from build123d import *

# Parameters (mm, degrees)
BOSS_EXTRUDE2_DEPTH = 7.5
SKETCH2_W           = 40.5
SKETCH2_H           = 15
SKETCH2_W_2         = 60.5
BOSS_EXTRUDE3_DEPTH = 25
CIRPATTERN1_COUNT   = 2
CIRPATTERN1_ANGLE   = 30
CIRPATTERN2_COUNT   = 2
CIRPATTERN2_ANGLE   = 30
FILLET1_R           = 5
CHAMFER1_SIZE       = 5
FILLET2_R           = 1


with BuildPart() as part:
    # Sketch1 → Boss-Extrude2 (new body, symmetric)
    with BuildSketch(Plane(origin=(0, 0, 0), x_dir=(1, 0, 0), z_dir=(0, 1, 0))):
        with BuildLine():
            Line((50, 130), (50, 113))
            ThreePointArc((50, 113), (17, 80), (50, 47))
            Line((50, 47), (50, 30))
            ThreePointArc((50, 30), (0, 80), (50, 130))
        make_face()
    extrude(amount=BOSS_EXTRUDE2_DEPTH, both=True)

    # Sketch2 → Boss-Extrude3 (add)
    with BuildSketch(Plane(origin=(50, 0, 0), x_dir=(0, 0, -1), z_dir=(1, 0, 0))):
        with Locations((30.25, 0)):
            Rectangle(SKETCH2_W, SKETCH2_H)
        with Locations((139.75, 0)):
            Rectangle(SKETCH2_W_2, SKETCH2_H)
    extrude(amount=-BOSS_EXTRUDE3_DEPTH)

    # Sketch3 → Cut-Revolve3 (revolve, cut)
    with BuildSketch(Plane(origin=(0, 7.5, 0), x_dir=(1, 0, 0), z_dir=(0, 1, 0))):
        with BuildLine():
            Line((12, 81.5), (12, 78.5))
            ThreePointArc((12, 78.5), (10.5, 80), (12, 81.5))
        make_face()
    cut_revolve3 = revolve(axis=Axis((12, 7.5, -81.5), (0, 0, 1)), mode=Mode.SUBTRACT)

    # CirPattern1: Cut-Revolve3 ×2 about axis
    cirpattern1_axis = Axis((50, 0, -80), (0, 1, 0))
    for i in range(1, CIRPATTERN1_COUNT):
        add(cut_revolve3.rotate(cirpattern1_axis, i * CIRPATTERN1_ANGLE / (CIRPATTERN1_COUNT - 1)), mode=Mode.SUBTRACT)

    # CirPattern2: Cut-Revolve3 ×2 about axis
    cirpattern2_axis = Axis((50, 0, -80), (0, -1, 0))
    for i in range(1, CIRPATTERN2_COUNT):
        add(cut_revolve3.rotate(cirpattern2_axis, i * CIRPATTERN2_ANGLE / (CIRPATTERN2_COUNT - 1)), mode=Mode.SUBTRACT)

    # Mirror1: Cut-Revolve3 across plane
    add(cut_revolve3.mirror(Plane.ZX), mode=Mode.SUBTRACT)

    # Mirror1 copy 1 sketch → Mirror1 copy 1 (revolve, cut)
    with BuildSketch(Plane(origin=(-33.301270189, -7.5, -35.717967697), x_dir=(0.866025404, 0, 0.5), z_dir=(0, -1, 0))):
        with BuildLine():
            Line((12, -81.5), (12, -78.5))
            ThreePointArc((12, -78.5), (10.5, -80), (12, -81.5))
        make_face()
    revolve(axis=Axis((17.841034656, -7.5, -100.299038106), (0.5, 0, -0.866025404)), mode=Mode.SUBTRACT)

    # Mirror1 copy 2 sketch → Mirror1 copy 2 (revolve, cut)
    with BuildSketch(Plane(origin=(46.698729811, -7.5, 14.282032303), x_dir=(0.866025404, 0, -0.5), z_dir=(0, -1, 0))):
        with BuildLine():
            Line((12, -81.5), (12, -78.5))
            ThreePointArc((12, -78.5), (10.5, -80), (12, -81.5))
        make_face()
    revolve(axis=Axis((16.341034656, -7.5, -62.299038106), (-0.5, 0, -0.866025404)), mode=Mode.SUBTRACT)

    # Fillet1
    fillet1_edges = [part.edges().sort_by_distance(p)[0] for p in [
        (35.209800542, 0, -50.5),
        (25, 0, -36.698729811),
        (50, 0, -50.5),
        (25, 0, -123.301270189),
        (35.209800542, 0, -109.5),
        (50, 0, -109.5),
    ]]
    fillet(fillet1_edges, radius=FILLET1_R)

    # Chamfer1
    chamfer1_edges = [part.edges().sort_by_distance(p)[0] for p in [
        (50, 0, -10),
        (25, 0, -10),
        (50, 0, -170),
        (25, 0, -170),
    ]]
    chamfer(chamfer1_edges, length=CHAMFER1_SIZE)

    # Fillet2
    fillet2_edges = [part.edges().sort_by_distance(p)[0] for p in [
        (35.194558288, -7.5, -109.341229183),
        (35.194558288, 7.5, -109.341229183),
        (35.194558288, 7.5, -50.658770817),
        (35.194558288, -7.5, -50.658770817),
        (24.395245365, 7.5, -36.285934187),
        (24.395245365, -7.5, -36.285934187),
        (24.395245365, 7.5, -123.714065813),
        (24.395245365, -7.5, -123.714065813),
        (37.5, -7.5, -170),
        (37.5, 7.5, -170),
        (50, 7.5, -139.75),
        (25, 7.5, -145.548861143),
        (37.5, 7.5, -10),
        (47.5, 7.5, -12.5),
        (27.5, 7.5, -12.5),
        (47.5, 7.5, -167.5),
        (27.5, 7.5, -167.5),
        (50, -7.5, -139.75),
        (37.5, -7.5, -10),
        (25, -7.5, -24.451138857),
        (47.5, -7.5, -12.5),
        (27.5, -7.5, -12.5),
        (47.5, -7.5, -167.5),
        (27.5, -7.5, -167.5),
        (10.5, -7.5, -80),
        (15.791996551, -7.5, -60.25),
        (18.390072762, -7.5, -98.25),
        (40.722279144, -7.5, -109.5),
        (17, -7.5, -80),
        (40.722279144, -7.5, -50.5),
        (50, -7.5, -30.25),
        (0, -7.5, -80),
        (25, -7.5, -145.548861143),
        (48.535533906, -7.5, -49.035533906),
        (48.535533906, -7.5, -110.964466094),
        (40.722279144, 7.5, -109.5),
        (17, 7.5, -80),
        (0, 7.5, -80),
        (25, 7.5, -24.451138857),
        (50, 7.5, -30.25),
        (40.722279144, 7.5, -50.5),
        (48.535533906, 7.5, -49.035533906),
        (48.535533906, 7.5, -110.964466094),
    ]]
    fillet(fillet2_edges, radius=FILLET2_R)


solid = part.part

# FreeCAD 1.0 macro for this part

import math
import FreeCAD as App
import Part
import Sketcher

V = App.Vector
Q = App.Units.Quantity


def edges_at(feature, points):
    """Names of the edges that pass closest to the given points."""
    edges = feature.Shape.Edges
    near = lambda p: min(range(len(edges)), key=lambda i: edges[i].distToShape(Part.Vertex(*p))[0])
    return sorted({f"Edge{near(p) + 1}" for p in points})

doc = App.newDocument("Part")
body = doc.addObject("PartDesign::Body", "Body")

# Sketch on XZ plane
sketch1 = body.newObject("Sketcher::SketchObject", "Sketch")
sketch1.AttachmentSupport = (doc.getObject("XZ_Plane"), [""])
sketch1.MapMode = "FlatFace"
sketch1.addGeometry(Part.LineSegment(V(50, -113, 0), V(50, -130, 0)), False)
sketch1.addGeometry(Part.ArcOfCircle(Part.Circle(V(50, -80, 0), V(0, 0, 1), 50), math.radians(90), math.radians(270)), False)
sketch1.addGeometry(Part.LineSegment(V(50, -30, 0), V(50, -47, 0)), False)
sketch1.addGeometry(Part.ArcOfCircle(Part.Circle(V(50, -80, 0), V(0, 0, 1), 33), math.radians(90), math.radians(270)), False)
sketch1.addConstraint(Sketcher.Constraint("Coincident", 0, 2, 1, 2))
sketch1.addConstraint(Sketcher.Constraint("Coincident", 1, 1, 2, 1))
sketch1.addConstraint(Sketcher.Constraint("Coincident", 2, 2, 3, 1))
sketch1.addConstraint(Sketcher.Constraint("Coincident", 3, 2, 0, 1))
sketch1.addConstraint(Sketcher.Constraint("Vertical", 0))
sketch1.addConstraint(Sketcher.Constraint("Vertical", 2))
sketch1.addConstraint(Sketcher.Constraint("Coincident", 3, 3, 1, 3))
sketch1.addConstraint(Sketcher.Constraint("Vertical", 3, 3, 0, 2))
sketch1.addConstraint(Sketcher.Constraint("Vertical", 0, 2, 1, 1))
sketch1.addConstraint(Sketcher.Constraint("Radius", 1, Q("50 mm")))
sketch1.addConstraint(Sketcher.Constraint("Radius", 3, Q("33 mm")))
sketch1.addConstraint(Sketcher.Constraint("DistanceX", -1, 1, 1, 3, Q("50 mm")))
sketch1.addConstraint(Sketcher.Constraint("DistanceY", 1, 3, -1, 1, Q("80 mm")))
pad1 = body.newObject("PartDesign::Pad", "Pad")
pad1.Profile = sketch1
pad1.Length = 15
pad1.Midplane = True

# Sketch on YZ plane
sketch2 = body.newObject("Sketcher::SketchObject", "Sketch001")
sketch2.AttachmentSupport = (doc.getObject("YZ_Plane"), [""])
sketch2.MapMode = "FlatFace"
sketch2.AttachmentOffset = App.Placement(V(0, 0, 50), App.Rotation())
sketch2.addGeometry(Part.LineSegment(V(7.5, -10, 0), V(-7.5, -10, 0)), False)
sketch2.addGeometry(Part.LineSegment(V(-7.5, -10, 0), V(-7.5, -50.5, 0)), False)
sketch2.addGeometry(Part.LineSegment(V(-7.5, -50.5, 0), V(7.5, -50.5, 0)), False)
sketch2.addGeometry(Part.LineSegment(V(7.5, -50.5, 0), V(7.5, -10, 0)), False)
sketch2.addGeometry(Part.LineSegment(V(7.5, -109.5, 0), V(-7.5, -109.5, 0)), False)
sketch2.addGeometry(Part.LineSegment(V(-7.5, -109.5, 0), V(-7.5, -170, 0)), False)
sketch2.addGeometry(Part.LineSegment(V(-7.5, -170, 0), V(7.5, -170, 0)), False)
sketch2.addGeometry(Part.LineSegment(V(7.5, -170, 0), V(7.5, -109.5, 0)), False)
sketch2.addConstraint(Sketcher.Constraint("Coincident", 0, 2, 1, 1))
sketch2.addConstraint(Sketcher.Constraint("Coincident", 1, 2, 2, 1))
sketch2.addConstraint(Sketcher.Constraint("Coincident", 2, 2, 3, 1))
sketch2.addConstraint(Sketcher.Constraint("Coincident", 3, 2, 0, 1))
sketch2.addConstraint(Sketcher.Constraint("Coincident", 4, 2, 5, 1))
sketch2.addConstraint(Sketcher.Constraint("Coincident", 5, 2, 6, 1))
sketch2.addConstraint(Sketcher.Constraint("Coincident", 6, 2, 7, 1))
sketch2.addConstraint(Sketcher.Constraint("Coincident", 7, 2, 4, 1))
sketch2.addConstraint(Sketcher.Constraint("Horizontal", 0))
sketch2.addConstraint(Sketcher.Constraint("Vertical", 1))
sketch2.addConstraint(Sketcher.Constraint("Horizontal", 2))
sketch2.addConstraint(Sketcher.Constraint("Vertical", 3))
sketch2.addConstraint(Sketcher.Constraint("Horizontal", 4))
sketch2.addConstraint(Sketcher.Constraint("Vertical", 5))
sketch2.addConstraint(Sketcher.Constraint("Horizontal", 6))
sketch2.addConstraint(Sketcher.Constraint("Vertical", 7))
sketch2.addConstraint(Sketcher.Constraint("Vertical", 1, 2, 4, 2))
sketch2.addConstraint(Sketcher.Constraint("Vertical", 3, 2, 6, 2))
sketch2.addConstraint(Sketcher.Constraint("DistanceX", 0, 2, 0, 1, Q("15 mm")))
sketch2.addConstraint(Sketcher.Constraint("DistanceY", 1, 2, 1, 1, Q("40.5 mm")))
sketch2.addConstraint(Sketcher.Constraint("DistanceY", 5, 2, 5, 1, Q("60.5 mm")))
sketch2.addConstraint(Sketcher.Constraint("DistanceY", 0, 2, -1, 1, Q("10 mm")))
sketch2.addConstraint(Sketcher.Constraint("DistanceY", 5, 2, -1, 1, Q("170 mm")))
sketch2.addConstraint(Sketcher.Constraint("DistanceX", 0, 2, -1, 1, Q("7.5 mm")))
pad2 = body.newObject("PartDesign::Pad", "Pad001")
pad2.Profile = sketch2
pad2.Length = 25
pad2.Reversed = True

# Sketch on XZ plane
sketch3 = body.newObject("Sketcher::SketchObject", "Sketch002")
sketch3.AttachmentSupport = (doc.getObject("XZ_Plane"), [""])
sketch3.MapMode = "FlatFace"
sketch3.AttachmentOffset = App.Placement(V(0, 0, -7.5), App.Rotation())
sketch3.addGeometry(Part.LineSegment(V(12, -78.5, 0), V(12, -81.5, 0)), False)
sketch3.addGeometry(Part.ArcOfCircle(Part.Circle(V(12, -80, 0), V(0, 0, 1), 1.5), math.radians(90), math.radians(270)), False)
sketch3.addGeometry(Part.LineSegment(V(12, -81.5, 0), V(12, -78.5, 0)), True)  # axis
sketch3.addConstraint(Sketcher.Constraint("Coincident", 0, 1, 1, 1))
sketch3.addConstraint(Sketcher.Constraint("Coincident", 1, 2, 0, 2))
sketch3.addConstraint(Sketcher.Constraint("Vertical", 0))
sketch3.addConstraint(Sketcher.Constraint("Vertical", 2))
sketch3.addConstraint(Sketcher.Constraint("Coincident", 2, 1, 1, 2))
sketch3.addConstraint(Sketcher.Constraint("Vertical", 1, 3, 0, 1))
sketch3.addConstraint(Sketcher.Constraint("Equal", 0, 2))
sketch3.addConstraint(Sketcher.Constraint("Radius", 1, Q("1.5 mm")))
sketch3.addConstraint(Sketcher.Constraint("DistanceX", -1, 1, 1, 3, Q("12 mm")))
sketch3.addConstraint(Sketcher.Constraint("DistanceY", 1, 3, -1, 1, Q("80 mm")))
groove = body.newObject("PartDesign::Groove", "Groove")
groove.Profile = sketch3
groove.ReferenceAxis = (sketch3, ["Axis0"])
groove.Angle = 360
doc.recompute()

datumline = body.newObject("PartDesign::Line", "DatumLine")
datumline.Placement = App.Placement(V(50, 0, -80), App.Rotation(V(0, 0, 1), V(0, 1, 0)))
polarpattern = body.newObject("PartDesign::PolarPattern", "PolarPattern")
polarpattern.Originals = [groove]
polarpattern.Axis = (datumline, [""])
polarpattern.Angle = 30
polarpattern.Occurrences = 2
body.Tip = polarpattern
doc.recompute()

datumline2 = body.newObject("PartDesign::Line", "DatumLine001")
datumline2.Placement = App.Placement(V(50, 0, -80), App.Rotation(V(0, 0, 1), V(0, -1, 0)))
polarpattern2 = body.newObject("PartDesign::PolarPattern", "PolarPattern001")
polarpattern2.Originals = [groove]
polarpattern2.Axis = (datumline2, [""])
polarpattern2.Angle = 30
polarpattern2.Occurrences = 2
body.Tip = polarpattern2
doc.recompute()

mirrored = body.newObject("PartDesign::Mirrored", "Mirrored")
mirrored.Originals = [groove]
mirrored.MirrorPlane = (doc.getObject("XZ_Plane"), [""])
body.Tip = mirrored

# Sketch on XZ plane
sketch4 = body.newObject("Sketcher::SketchObject", "Sketch003")
sketch4.AttachmentSupport = (doc.getObject("XZ_Plane"), [""])
sketch4.MapMode = "FlatFace"
sketch4.AttachmentOffset = App.Placement(V(0, 0, 7.5), App.Rotation())
sketch4.addGeometry(Part.LineSegment(V(17.841035, -100.299038, 0), V(16.341035, -97.700962, 0)), False)
sketch4.addGeometry(Part.ArcOfCircle(Part.Circle(V(17.091035, -99, 0), V(0, 0, 1), 1.5), math.radians(120), math.radians(300)), False)
sketch4.addGeometry(Part.LineSegment(V(16.341035, -97.700962, 0), V(17.841035, -100.299038, 0)), True)  # axis
sketch4.addConstraint(Sketcher.Constraint("Coincident", 0, 1, 1, 2))
sketch4.addConstraint(Sketcher.Constraint("Coincident", 1, 1, 0, 2))
sketch4.addConstraint(Sketcher.Constraint("Coincident", 2, 1, 1, 1))
sketch4.addConstraint(Sketcher.Constraint("Coincident", 2, 2, 0, 1))
sketch4.addConstraint(Sketcher.Constraint("Radius", 1, Q("1.5 mm")))
sketch4.addConstraint(Sketcher.Constraint("Angle", 0, Q("120 deg")))
sketch4.addConstraint(Sketcher.Constraint("DistanceY", 1, 3, -1, 1, Q("99 mm")))
sketch4.addConstraint(Sketcher.Constraint("DistanceX", 1, 3, 0, 1, Q("0.75 mm")))
sketch4.addConstraint(Sketcher.Constraint("DistanceX", -1, 1, 1, 3, Q("17.091035 mm")))
groove2 = body.newObject("PartDesign::Groove", "Groove001")
groove2.Profile = sketch4
groove2.ReferenceAxis = (sketch4, ["Axis0"])
groove2.Angle = 360

# Sketch on XZ plane
sketch5 = body.newObject("Sketcher::SketchObject", "Sketch004")
sketch5.AttachmentSupport = (doc.getObject("XZ_Plane"), [""])
sketch5.MapMode = "FlatFace"
sketch5.AttachmentOffset = App.Placement(V(0, 0, 7.5), App.Rotation())
sketch5.addGeometry(Part.LineSegment(V(16.341035, -62.299038, 0), V(17.841035, -59.700962, 0)), False)
sketch5.addGeometry(Part.ArcOfCircle(Part.Circle(V(17.091035, -61, 0), V(0, 0, 1), 1.5), math.radians(60), math.radians(240)), False)
sketch5.addGeometry(Part.LineSegment(V(17.841035, -59.700962, 0), V(16.341035, -62.299038, 0)), True)  # axis
sketch5.addConstraint(Sketcher.Constraint("Coincident", 0, 1, 1, 2))
sketch5.addConstraint(Sketcher.Constraint("Coincident", 1, 1, 0, 2))
sketch5.addConstraint(Sketcher.Constraint("Coincident", 2, 1, 1, 1))
sketch5.addConstraint(Sketcher.Constraint("Coincident", 2, 2, 0, 1))
sketch5.addConstraint(Sketcher.Constraint("Radius", 1, Q("1.5 mm")))
sketch5.addConstraint(Sketcher.Constraint("Angle", 0, Q("60 deg")))
sketch5.addConstraint(Sketcher.Constraint("DistanceY", 1, 3, -1, 1, Q("61 mm")))
sketch5.addConstraint(Sketcher.Constraint("DistanceX", 0, 1, 1, 3, Q("0.75 mm")))
sketch5.addConstraint(Sketcher.Constraint("DistanceX", -1, 1, 1, 3, Q("17.091035 mm")))
groove3 = body.newObject("PartDesign::Groove", "Groove002")
groove3.Profile = sketch5
groove3.ReferenceAxis = (sketch5, ["Axis0"])
groove3.Angle = 360
doc.recompute()

fillet = body.newObject("PartDesign::Fillet", "Fillet")
fillet.Base = (groove3, edges_at(groove3, [
    (35.21, 0, -50.5),
    (25, 0, -36.699),
    (50, 0, -50.5),
    (25, 0, -123.301),
    (35.21, 0, -109.5),
    (50, 0, -109.5),
]))
fillet.Radius = 5
doc.recompute()

chamfer = body.newObject("PartDesign::Chamfer", "Chamfer")
chamfer.Base = (fillet, edges_at(fillet, [
    (50, 0, -10),
    (25, 0, -10),
    (50, 0, -170),
    (25, 0, -170),
]))
chamfer.Size = 5
doc.recompute()

fillet2 = body.newObject("PartDesign::Fillet", "Fillet001")
fillet2.Base = (chamfer, edges_at(chamfer, [
    (35.195, -7.5, -109.341),
    (35.195, 7.5, -109.341),
    (35.195, 7.5, -50.659),
    (35.195, -7.5, -50.659),
    (24.395, 7.5, -36.286),
    (24.395, -7.5, -36.286),
    (24.395, 7.5, -123.714),
    (24.395, -7.5, -123.714),
    (37.5, -7.5, -170),
    (37.5, 7.5, -170),
    (50, 7.5, -139.75),
    (25, 7.5, -145.549),
    (37.5, 7.5, -10),
    (47.5, 7.5, -12.5),
    (27.5, 7.5, -12.5),
    (47.5, 7.5, -167.5),
    (27.5, 7.5, -167.5),
    (50, -7.5, -139.75),
    (37.5, -7.5, -10),
    (25, -7.5, -24.451),
    (47.5, -7.5, -12.5),
    (27.5, -7.5, -12.5),
    (47.5, -7.5, -167.5),
    (27.5, -7.5, -167.5),
    (10.5, -7.5, -80),
    (15.792, -7.5, -60.25),
    (18.39, -7.5, -98.25),
    (40.722, -7.5, -109.5),
    (17, -7.5, -80),
    (40.722, -7.5, -50.5),
    (50, -7.5, -30.25),
    (0, -7.5, -80),
    (25, -7.5, -145.549),
    (48.536, -7.5, -49.036),
    (48.536, -7.5, -110.964),
    (40.722, 7.5, -109.5),
    (17, 7.5, -80),
    (0, 7.5, -80),
    (25, 7.5, -24.451),
    (50, 7.5, -30.25),
    (40.722, 7.5, -50.5),
    (48.536, 7.5, -49.036),
    (48.536, 7.5, -110.964),
]))
fillet2.Radius = 1

doc.recompute()
